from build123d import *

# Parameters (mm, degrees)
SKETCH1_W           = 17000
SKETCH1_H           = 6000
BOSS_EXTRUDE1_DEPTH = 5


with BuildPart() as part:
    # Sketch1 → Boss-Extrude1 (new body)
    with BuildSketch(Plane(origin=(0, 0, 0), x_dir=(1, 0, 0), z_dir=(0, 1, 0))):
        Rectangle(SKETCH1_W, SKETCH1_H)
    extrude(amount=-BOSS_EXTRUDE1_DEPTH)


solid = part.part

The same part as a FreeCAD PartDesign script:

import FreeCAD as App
import Part
import Sketcher
from FreeCAD import Vector
Q = App.Units.Quantity


def add_polygon(sketch, points):
    """Adds a closed chain of lines whose ends are joined by coincident constraints."""
    first, n = sketch.GeometryCount, len(points)
    for a, b in zip(points, points[1:] + points[:1]):
        sketch.addGeometry(Part.LineSegment(App.Vector(*a, 0), App.Vector(*b, 0)), False)
    for i in range(n):
        sketch.addConstraint(Sketcher.Constraint("Coincident", first + i, 2, first + (i + 1) % n, 1))

doc = App.newDocument("Part")
params = doc.addObject("Spreadsheet::Sheet", "Params")
for row, (alias, value) in enumerate([
    ("sketch1_width", "17000 mm"),
    ("sketch1_height", "6000 mm"),
    ("pad1_length", "5 mm"),
], start=1):
    params.set(f"A{row}", alias)
    params.set(f"B{row}", "=" + value)
    params.setAlias(f"B{row}", alias)

body = doc.addObject("PartDesign::Body", "Body")

# Sketch on XZ plane
sketch1 = body.newObject("Sketcher::SketchObject", "Sketch")
sketch1.AttachmentSupport = (doc.getObject("XZ_Plane"), [""])
sketch1.MapMode = "FlatFace"
add_polygon(sketch1, [(-8500, -3000), (-8500, 3000), (8500, 3000), (8500, -3000)])  # lines 0-3
sketch1.addConstraint([
    Sketcher.Constraint("Vertical", 0),
    Sketcher.Constraint("Horizontal", 1),
    Sketcher.Constraint("Vertical", 2),
    Sketcher.Constraint("Horizontal", 3),
    Sketcher.Constraint("Symmetric", 0, 2, 2, 2, -1, 1),
    Sketcher.Constraint("DistanceX", 1, 1, 1, 2, Q("17000 mm")),
    Sketcher.Constraint("DistanceY", 0, 1, 0, 2, Q("6000 mm")),
])
sketch1.setExpression("Constraints[9]", "Params.sketch1_width")
sketch1.setExpression("Constraints[10]", "Params.sketch1_height")
pad1 = body.newObject("PartDesign::Pad", "Pad")
pad1.Profile = sketch1
pad1.setExpression("Length", "Params.pad1_length")

doc.recompute()
